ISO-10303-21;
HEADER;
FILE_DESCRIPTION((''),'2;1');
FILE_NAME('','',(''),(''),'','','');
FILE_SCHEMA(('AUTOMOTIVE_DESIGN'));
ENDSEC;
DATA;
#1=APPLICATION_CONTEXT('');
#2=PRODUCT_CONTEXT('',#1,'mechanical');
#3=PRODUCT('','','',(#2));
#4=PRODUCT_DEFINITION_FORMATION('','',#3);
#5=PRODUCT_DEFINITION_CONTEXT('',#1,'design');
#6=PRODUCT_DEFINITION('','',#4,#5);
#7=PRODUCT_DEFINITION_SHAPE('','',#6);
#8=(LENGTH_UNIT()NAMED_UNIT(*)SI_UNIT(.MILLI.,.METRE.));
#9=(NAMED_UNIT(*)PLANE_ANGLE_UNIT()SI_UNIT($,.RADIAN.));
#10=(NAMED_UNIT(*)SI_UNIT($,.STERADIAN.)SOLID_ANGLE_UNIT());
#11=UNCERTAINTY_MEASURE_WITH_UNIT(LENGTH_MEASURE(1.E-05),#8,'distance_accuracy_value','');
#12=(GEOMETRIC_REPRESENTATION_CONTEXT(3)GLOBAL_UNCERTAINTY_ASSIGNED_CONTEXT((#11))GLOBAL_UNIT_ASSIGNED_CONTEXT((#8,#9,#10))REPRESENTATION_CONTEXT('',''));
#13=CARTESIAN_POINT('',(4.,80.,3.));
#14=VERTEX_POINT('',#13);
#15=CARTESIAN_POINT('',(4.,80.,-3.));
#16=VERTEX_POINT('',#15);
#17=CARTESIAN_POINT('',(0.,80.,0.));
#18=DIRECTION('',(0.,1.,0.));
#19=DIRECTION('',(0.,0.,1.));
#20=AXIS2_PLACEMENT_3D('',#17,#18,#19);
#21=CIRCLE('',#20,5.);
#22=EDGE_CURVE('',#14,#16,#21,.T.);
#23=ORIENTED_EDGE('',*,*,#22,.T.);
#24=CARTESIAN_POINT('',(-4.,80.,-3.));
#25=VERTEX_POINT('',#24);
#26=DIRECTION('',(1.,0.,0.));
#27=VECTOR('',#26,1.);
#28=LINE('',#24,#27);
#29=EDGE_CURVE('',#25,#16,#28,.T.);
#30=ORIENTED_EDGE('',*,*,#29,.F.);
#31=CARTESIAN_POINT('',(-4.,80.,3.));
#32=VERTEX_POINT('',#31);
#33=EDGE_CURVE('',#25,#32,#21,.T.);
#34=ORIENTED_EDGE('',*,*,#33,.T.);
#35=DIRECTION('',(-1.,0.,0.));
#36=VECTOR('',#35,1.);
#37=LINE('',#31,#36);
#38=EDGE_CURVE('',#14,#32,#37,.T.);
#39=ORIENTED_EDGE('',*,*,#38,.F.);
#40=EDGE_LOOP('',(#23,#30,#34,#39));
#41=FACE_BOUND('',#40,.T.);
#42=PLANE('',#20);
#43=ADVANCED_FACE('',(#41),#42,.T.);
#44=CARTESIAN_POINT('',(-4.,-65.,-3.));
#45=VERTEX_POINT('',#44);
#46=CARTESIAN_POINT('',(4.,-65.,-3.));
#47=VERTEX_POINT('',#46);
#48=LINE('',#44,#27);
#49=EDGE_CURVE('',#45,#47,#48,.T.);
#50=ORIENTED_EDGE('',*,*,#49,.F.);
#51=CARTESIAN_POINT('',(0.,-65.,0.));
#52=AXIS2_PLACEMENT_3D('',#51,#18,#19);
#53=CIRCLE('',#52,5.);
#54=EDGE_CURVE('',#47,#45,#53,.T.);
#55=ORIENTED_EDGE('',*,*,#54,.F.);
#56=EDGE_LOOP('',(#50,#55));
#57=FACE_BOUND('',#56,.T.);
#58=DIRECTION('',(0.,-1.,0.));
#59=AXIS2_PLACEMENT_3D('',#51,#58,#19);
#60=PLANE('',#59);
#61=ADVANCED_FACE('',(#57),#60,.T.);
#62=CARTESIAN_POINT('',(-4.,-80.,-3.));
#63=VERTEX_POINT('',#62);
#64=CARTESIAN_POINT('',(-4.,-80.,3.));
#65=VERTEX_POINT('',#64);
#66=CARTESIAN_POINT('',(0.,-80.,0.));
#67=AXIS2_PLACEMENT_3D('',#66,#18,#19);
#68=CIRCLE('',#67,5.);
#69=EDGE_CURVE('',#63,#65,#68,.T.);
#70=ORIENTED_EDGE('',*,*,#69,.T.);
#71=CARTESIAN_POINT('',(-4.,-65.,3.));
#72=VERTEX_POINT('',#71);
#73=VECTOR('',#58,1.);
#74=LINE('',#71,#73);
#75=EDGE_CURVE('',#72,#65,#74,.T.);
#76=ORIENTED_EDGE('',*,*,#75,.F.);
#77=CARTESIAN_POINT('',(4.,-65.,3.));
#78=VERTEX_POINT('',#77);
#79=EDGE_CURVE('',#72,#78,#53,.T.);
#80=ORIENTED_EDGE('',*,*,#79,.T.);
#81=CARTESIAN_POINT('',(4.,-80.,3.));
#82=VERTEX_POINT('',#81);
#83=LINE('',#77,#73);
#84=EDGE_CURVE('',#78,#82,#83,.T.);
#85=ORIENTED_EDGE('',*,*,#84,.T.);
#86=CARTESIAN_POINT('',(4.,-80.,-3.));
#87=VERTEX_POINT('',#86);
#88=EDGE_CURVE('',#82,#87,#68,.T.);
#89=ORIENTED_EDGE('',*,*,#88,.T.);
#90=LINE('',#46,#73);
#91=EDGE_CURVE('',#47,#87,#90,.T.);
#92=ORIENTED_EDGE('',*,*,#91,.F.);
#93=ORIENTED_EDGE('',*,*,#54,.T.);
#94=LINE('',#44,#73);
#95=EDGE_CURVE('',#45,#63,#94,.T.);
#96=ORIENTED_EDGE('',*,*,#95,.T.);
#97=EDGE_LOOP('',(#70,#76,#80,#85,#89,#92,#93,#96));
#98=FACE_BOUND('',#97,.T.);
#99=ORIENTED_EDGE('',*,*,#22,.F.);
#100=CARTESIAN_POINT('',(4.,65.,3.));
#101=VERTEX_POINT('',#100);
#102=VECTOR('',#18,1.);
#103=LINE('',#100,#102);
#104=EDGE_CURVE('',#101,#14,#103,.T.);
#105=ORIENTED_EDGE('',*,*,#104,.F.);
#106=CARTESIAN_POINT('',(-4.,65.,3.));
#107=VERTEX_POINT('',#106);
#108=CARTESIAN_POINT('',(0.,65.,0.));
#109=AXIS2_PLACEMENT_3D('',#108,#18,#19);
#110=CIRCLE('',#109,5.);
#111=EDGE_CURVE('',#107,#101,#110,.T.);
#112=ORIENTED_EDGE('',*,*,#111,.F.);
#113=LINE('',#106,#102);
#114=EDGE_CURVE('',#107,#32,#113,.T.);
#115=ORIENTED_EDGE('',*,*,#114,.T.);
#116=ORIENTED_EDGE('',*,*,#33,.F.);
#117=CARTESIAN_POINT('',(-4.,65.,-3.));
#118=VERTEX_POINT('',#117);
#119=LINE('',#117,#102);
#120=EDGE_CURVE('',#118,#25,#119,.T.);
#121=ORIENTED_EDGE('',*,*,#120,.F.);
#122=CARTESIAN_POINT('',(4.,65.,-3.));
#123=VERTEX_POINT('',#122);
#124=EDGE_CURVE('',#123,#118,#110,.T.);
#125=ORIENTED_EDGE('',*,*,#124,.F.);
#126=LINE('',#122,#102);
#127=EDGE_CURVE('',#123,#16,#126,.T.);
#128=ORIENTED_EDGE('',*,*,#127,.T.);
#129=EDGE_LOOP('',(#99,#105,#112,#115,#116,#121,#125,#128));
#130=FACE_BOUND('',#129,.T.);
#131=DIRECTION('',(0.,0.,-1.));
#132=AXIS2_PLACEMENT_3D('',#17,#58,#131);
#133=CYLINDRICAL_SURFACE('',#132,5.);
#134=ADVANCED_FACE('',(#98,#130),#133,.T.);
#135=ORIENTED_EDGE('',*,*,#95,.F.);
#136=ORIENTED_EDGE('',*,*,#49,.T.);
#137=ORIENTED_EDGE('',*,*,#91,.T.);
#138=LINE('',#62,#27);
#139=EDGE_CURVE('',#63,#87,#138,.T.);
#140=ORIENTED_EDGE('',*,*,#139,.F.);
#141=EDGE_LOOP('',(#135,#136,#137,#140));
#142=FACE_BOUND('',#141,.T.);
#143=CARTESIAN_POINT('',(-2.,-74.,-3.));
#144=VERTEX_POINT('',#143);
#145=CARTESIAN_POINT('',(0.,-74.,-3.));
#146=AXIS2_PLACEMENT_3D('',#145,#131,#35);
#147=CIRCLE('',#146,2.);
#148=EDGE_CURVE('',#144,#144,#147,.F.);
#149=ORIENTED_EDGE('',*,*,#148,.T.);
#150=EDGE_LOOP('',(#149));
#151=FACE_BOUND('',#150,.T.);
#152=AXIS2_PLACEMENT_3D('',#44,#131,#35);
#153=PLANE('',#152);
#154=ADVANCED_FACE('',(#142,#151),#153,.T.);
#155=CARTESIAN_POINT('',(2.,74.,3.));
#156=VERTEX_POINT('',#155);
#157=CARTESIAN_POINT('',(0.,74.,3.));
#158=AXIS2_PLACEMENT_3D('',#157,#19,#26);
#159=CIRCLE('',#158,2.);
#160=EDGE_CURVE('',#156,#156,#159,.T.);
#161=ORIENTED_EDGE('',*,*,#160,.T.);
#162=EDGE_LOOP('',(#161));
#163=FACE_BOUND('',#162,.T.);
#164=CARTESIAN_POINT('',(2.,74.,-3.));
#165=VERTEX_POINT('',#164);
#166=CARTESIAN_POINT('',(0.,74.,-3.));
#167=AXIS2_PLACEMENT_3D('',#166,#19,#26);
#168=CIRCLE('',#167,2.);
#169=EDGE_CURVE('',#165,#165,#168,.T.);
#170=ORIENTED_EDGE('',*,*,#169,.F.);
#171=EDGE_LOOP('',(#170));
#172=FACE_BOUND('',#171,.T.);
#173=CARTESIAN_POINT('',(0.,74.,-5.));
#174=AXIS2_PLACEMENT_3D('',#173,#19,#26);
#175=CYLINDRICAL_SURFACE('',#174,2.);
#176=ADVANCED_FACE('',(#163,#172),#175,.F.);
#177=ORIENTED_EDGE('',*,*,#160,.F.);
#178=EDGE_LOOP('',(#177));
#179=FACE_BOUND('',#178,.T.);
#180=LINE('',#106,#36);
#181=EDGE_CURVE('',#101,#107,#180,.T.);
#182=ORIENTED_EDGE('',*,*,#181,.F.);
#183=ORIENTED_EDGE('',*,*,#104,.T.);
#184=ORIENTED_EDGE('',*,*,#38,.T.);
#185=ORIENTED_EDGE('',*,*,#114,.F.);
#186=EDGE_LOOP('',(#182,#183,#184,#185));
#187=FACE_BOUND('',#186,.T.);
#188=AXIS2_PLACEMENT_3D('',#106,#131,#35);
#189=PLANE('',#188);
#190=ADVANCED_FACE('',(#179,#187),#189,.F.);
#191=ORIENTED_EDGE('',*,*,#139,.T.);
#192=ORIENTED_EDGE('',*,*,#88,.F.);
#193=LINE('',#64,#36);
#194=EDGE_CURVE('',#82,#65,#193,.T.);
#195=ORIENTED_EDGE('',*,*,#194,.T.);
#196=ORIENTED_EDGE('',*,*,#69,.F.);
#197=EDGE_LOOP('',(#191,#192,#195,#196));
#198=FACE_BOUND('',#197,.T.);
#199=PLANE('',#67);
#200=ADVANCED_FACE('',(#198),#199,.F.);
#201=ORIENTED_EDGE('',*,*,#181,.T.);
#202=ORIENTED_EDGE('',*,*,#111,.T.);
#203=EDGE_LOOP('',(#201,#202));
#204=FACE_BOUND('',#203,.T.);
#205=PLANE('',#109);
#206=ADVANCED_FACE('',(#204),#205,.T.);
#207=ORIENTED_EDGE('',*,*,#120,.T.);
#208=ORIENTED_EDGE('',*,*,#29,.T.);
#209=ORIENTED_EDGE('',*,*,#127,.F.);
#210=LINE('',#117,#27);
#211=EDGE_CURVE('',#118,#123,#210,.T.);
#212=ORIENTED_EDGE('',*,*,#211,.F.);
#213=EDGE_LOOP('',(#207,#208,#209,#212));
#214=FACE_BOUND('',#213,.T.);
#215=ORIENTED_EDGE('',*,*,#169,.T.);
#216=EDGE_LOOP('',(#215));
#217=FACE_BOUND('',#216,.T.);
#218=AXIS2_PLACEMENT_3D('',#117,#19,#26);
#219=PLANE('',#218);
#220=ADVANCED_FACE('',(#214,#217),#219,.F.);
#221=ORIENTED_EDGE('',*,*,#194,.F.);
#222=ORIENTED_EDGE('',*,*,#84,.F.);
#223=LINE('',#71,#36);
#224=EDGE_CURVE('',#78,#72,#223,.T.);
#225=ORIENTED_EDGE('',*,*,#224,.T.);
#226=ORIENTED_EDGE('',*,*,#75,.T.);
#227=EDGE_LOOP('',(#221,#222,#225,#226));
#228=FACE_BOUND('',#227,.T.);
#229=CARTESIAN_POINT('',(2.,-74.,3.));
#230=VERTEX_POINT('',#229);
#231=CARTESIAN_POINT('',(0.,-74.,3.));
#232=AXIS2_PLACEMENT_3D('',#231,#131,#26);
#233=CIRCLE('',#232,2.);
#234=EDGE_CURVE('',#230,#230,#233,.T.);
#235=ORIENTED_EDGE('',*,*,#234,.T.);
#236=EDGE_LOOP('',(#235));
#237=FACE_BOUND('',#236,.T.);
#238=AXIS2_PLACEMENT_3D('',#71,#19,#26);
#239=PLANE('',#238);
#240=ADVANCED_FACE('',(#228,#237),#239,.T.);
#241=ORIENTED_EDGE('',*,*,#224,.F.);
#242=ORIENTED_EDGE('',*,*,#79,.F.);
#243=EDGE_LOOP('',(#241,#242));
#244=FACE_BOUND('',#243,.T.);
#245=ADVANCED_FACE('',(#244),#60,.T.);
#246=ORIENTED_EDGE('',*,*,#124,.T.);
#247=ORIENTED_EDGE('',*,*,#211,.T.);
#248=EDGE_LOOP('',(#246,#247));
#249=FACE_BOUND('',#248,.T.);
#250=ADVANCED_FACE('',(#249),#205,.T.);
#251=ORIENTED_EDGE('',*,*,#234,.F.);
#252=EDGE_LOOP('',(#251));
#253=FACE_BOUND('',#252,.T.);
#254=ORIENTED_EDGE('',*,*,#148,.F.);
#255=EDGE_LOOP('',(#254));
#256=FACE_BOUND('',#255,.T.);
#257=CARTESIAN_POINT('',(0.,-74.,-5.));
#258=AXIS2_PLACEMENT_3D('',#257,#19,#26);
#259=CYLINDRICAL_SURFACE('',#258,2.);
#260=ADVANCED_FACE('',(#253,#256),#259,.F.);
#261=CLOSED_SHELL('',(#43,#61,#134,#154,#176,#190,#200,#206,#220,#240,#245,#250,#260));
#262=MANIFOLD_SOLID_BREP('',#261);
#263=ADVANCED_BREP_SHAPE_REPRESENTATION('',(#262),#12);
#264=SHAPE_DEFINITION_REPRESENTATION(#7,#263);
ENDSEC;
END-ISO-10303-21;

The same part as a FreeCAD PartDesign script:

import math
import FreeCAD as App
import Part
import Sketcher
Q = App.Units.Quantity

doc = App.newDocument("Part")
body = doc.addObject("PartDesign::Body", "Body")

# Sketch on XZ plane
sketch1 = body.newObject("Sketcher::SketchObject", "Sketch")
sketch1.AttachmentSupport = (doc.getObject("XZ_Plane"), [""])
sketch1.MapMode = "FlatFace"
sketch1.addGeometry(Part.Circle(App.Vector(0, 0, 0), App.Vector(0, 0, 1), 5), False)
sketch1.addConstraint(Sketcher.Constraint("Coincident", 0, 3, -1, 1))
sketch1.addConstraint(Sketcher.Constraint("Diameter", 0, Q("10 mm")))
pad1 = body.newObject("PartDesign::Pad", "Pad")
pad1.Profile = sketch1
pad1.Length = 160
pad1.Midplane = True

# Sketch on XZ plane
sketch2 = body.newObject("Sketcher::SketchObject", "Sketch001")
sketch2.AttachmentSupport = (doc.getObject("XZ_Plane"), [""])
sketch2.MapMode = "FlatFace"
sketch2.AttachmentOffset = App.Placement(App.Vector(0, 0, -80), App.Rotation())
sketch2.addGeometry(Part.LineSegment(App.Vector(4, 3, 0), App.Vector(-4, 3, 0)), False)
sketch2.addGeometry(Part.ArcOfCircle(Part.Circle(App.Vector(0, 0, 0), App.Vector(0, 0, 1), 5), math.radians(37), math.radians(143)), False)
sketch2.addGeometry(Part.LineSegment(App.Vector(-4, -3, 0), App.Vector(4, -3, 0)), False)
sketch2.addGeometry(Part.ArcOfCircle(Part.Circle(App.Vector(0, 0, 0), App.Vector(0, 0, 1), 5), math.radians(-143), math.radians(-37)), False)
sketch2.addConstraint(Sketcher.Constraint("Coincident", 0, 1, 1, 1))
sketch2.addConstraint(Sketcher.Constraint("Coincident", 1, 2, 0, 2))
sketch2.addConstraint(Sketcher.Constraint("Coincident", 2, 1, 3, 1))
sketch2.addConstraint(Sketcher.Constraint("Coincident", 3, 2, 2, 2))
sketch2.addConstraint(Sketcher.Constraint("Horizontal", 0))
sketch2.addConstraint(Sketcher.Constraint("Horizontal", 2))
sketch2.addConstraint(Sketcher.Constraint("Coincident", 1, 3, -1, 1))
sketch2.addConstraint(Sketcher.Constraint("Coincident", 3, 3, -1, 1))
sketch2.addConstraint(Sketcher.Constraint("Equal", 1, 3))
sketch2.addConstraint(Sketcher.Constraint("Vertical", 1, 2, 2, 1))
sketch2.addConstraint(Sketcher.Constraint("Radius", 1, Q("5 mm")))
sketch2.addConstraint(Sketcher.Constraint("DistanceX", 0, 2, 0, 1, Q("8 mm")))
pocket1 = body.newObject("PartDesign::Pocket", "Pocket")
pocket1.Profile = sketch2
pocket1.Length = 15
pocket1.Reversed = True
doc.recompute()

mirrored = body.newObject("PartDesign::Mirrored", "Mirrored")
mirrored.Originals = [pocket1]
mirrored.MirrorPlane = (doc.getObject("XZ_Plane"), [""])
body.Tip = mirrored

# Sketch on XY plane
sketch3 = body.newObject("Sketcher::SketchObject", "Sketch002")
sketch3.AttachmentSupport = (doc.getObject("XY_Plane"), [""])
sketch3.MapMode = "FlatFace"
sketch3.AttachmentOffset = App.Placement(App.Vector(0, 0, 3), App.Rotation())
sketch3.addGeometry(Part.Circle(App.Vector(0, 74, 0), App.Vector(0, 0, 1), 2), False)
sketch3.addConstraint(Sketcher.Constraint("PointOnObject", 0, 3, -2))
sketch3.addConstraint(Sketcher.Constraint("Diameter", 0, Q("4 mm")))
sketch3.addConstraint(Sketcher.Constraint("DistanceY", -1, 1, 0, 3, Q("74 mm")))
pocket2 = body.newObject("PartDesign::Pocket", "Pocket001")
pocket2.Profile = sketch3
pocket2.Type = "ThroughAll"
doc.recompute()

mirrored2 = body.newObject("PartDesign::Mirrored", "Mirrored001")
mirrored2.Originals = [pocket2]
mirrored2.MirrorPlane = (doc.getObject("XZ_Plane"), [""])
body.Tip = mirrored2

doc.recompute()
